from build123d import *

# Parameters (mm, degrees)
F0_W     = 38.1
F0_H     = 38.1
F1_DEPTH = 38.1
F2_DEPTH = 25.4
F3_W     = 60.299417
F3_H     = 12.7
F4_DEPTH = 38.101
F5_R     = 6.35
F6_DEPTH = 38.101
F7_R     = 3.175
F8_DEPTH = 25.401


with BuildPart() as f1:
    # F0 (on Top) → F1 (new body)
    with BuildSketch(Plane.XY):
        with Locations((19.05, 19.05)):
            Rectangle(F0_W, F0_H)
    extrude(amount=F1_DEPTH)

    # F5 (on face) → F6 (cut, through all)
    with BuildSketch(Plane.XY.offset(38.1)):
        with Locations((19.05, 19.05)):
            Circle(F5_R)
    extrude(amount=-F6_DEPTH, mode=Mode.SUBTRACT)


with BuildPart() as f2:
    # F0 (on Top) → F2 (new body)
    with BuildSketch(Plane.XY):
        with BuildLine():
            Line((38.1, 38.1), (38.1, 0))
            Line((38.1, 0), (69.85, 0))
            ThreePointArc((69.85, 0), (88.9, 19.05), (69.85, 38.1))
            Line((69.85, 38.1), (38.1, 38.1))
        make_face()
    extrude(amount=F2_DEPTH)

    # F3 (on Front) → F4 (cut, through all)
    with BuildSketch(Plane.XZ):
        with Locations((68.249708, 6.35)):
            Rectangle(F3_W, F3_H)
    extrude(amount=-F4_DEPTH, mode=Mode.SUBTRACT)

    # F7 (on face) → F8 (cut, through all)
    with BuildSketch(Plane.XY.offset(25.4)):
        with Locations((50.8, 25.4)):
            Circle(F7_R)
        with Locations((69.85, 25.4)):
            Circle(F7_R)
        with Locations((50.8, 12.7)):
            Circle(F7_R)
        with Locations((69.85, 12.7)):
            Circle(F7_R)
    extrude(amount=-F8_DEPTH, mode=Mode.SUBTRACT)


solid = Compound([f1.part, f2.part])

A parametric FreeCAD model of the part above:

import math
import FreeCAD as App
import Part
import Sketcher
Q = App.Units.Quantity

doc = App.newDocument("Part")
params = doc.addObject("Spreadsheet::Sheet", "Params")
for row, (alias, value) in enumerate([
    ("sketch1_width", "1.5 in"),
    ("pad1_length", "1.5 in"),
    ("sketch2_diameter", "0.5 in"),
    ("sketch3_radius", "0.75 in"),
    ("sketch3_width", "1.25 in"),
    ("pad2_length", "1 in"),
    ("sketch4_height", "0.5 in"),
    ("sketch5_diameter", "0.25 in"),
], start=1):
    params.set(f"A{row}", alias)
    params.set(f"B{row}", "=" + value)
    params.setAlias(f"B{row}", alias)

body = doc.addObject("PartDesign::Body", "Body")

# Sketch on XY plane
sketch1 = body.newObject("Sketcher::SketchObject", "Sketch")
sketch1.AttachmentSupport = (doc.getObject("XY_Plane"), [""])
sketch1.MapMode = "FlatFace"
sketch1.addGeometry([
    Part.LineSegment(App.Vector(0, 38.1, 0), App.Vector(0, 0, 0)),
    Part.LineSegment(App.Vector(0, 0, 0), App.Vector(38.1, 0, 0)),
    Part.LineSegment(App.Vector(38.1, 0, 0), App.Vector(38.1, 38.1, 0)),
    Part.LineSegment(App.Vector(38.1, 38.1, 0), App.Vector(0, 38.1, 0)),
], False)
sketch1.addConstraint([
    Sketcher.Constraint("Coincident", 0, 2, 1, 1),
    Sketcher.Constraint("Coincident", 1, 2, 2, 1),
    Sketcher.Constraint("Coincident", 2, 2, 3, 1),
    Sketcher.Constraint("Coincident", 3, 2, 0, 1),
    Sketcher.Constraint("Vertical", 0),
    Sketcher.Constraint("Horizontal", 1),
    Sketcher.Constraint("Vertical", 2),
    Sketcher.Constraint("Horizontal", 3),
    Sketcher.Constraint("Coincident", 0, 2, -1, 1),
    Sketcher.Constraint("Equal", 3, 0),
    Sketcher.Constraint("DistanceX", 1, 1, 1, 2, Q("1.5 in")),
])
sketch1.setExpression("Constraints[10]", "Params.sketch1_width")
pad1 = body.newObject("PartDesign::Pad", "Pad")
pad1.Profile = sketch1
pad1.setExpression("Length", "Params.pad1_length")

# Sketch on XY plane
sketch2 = body.newObject("Sketcher::SketchObject", "Sketch001")
sketch2.AttachmentSupport = (doc.getObject("XY_Plane"), [""])
sketch2.MapMode = "FlatFace"
sketch2.AttachmentOffset = App.Placement(App.Vector(0, 0, 1.5 * 25.4), App.Rotation())
sketch2.addGeometry(Part.Circle(App.Vector(19.05, 19.05, 0), App.Vector(0, 0, 1), 6.35), False)
sketch2.addConstraint([
    Sketcher.Constraint("Diameter", 0, Q("0.5 in")),
    Sketcher.Constraint("DistanceX", -1, 1, 0, 3, Q("0.75 in")),
    Sketcher.Constraint("DistanceY", -1, 1, 0, 3, Q("0.75 in")),
])
sketch2.setExpression("Constraints[0]", "Params.sketch2_diameter")
pocket1 = body.newObject("PartDesign::Pocket", "Pocket")
pocket1.Profile = sketch2
pocket1.Type = "ThroughAll"
body2 = doc.addObject("PartDesign::Body", "Body001")

# Sketch on XY plane
sketch3 = body2.newObject("Sketcher::SketchObject", "Sketch002")
sketch3.AttachmentSupport = (doc.getObject("XY_Plane001"), [""])
sketch3.MapMode = "FlatFace"
sketch3.addGeometry([
    Part.LineSegment(App.Vector(38.1, 38.1, 0), App.Vector(38.1, 0, 0)),
    Part.LineSegment(App.Vector(38.1, 0, 0), App.Vector(69.85, 0, 0)),
    Part.ArcOfCircle(Part.Circle(App.Vector(69.85, 19.05, 0), App.Vector(0, 0, 1), 19.05), math.radians(-90), math.radians(90)),
    Part.LineSegment(App.Vector(69.85, 38.1, 0), App.Vector(38.1, 38.1, 0)),
], False)
sketch3.addConstraint([
    Sketcher.Constraint("Coincident", 0, 2, 1, 1),
    Sketcher.Constraint("Tangent", 1, 2, 2, 1),
    Sketcher.Constraint("Tangent", 2, 2, 3, 1),
    Sketcher.Constraint("Coincident", 3, 2, 0, 1),
    Sketcher.Constraint("Vertical", 0),
    Sketcher.Constraint("Horizontal", 1),
    Sketcher.Constraint("Horizontal", 3),
    Sketcher.Constraint("PointOnObject", 0, 2, -1),
    Sketcher.Constraint("Radius", 2, Q("0.75 in")),
    Sketcher.Constraint("DistanceX", 1, 1, 1, 2, Q("1.25 in")),
    Sketcher.Constraint("DistanceX", -1, 1, 0, 2, Q("1.5 in")),
])
sketch3.setExpression("Constraints[8]", "Params.sketch3_radius")
sketch3.setExpression("Constraints[9]", "Params.sketch3_width")
pad2 = body2.newObject("PartDesign::Pad", "Pad001")
pad2.Profile = sketch3
pad2.setExpression("Length", "Params.pad2_length")

# Sketch on XZ plane
sketch4 = body2.newObject("Sketcher::SketchObject", "Sketch003")
sketch4.AttachmentSupport = (doc.getObject("XZ_Plane001"), [""])
sketch4.MapMode = "FlatFace"
sketch4.addGeometry([
    Part.LineSegment(App.Vector(38.1, 12.7, 0), App.Vector(38.1, 0, 0)),
    Part.LineSegment(App.Vector(38.1, 0, 0), App.Vector(98.399417, 0, 0)),
    Part.LineSegment(App.Vector(98.399417, 0, 0), App.Vector(98.399417, 12.7, 0)),
    Part.LineSegment(App.Vector(98.399417, 12.7, 0), App.Vector(38.1, 12.7, 0)),
], False)
sketch4.addConstraint([
    Sketcher.Constraint("Coincident", 0, 2, 1, 1),
    Sketcher.Constraint("Coincident", 1, 2, 2, 1),
    Sketcher.Constraint("Coincident", 2, 2, 3, 1),
    Sketcher.Constraint("Coincident", 3, 2, 0, 1),
    Sketcher.Constraint("Vertical", 0),
    Sketcher.Constraint("Horizontal", 1),
    Sketcher.Constraint("Vertical", 2),
    Sketcher.Constraint("Horizontal", 3),
    Sketcher.Constraint("PointOnObject", 0, 2, -1),
    Sketcher.Constraint("DistanceY", 0, 2, 0, 1, Q("0.5 in")),
    Sketcher.Constraint("DistanceX", -1, 1, 0, 2, Q("1.5 in")),
    Sketcher.Constraint("DistanceX", 1, 1, 1, 2, 60.299417),
])
sketch4.setExpression("Constraints[9]", "Params.sketch4_height")
pocket2 = body2.newObject("PartDesign::Pocket", "Pocket001")
pocket2.Profile = sketch4
pocket2.Type = "ThroughAll"

# Sketch on XY plane
sketch5 = body2.newObject("Sketcher::SketchObject", "Sketch004")
sketch5.AttachmentSupport = (doc.getObject("XY_Plane001"), [""])
sketch5.MapMode = "FlatFace"
sketch5.AttachmentOffset = App.Placement(App.Vector(0, 0, 1 * 25.4), App.Rotation())
sketch5.addGeometry([
    Part.Circle(App.Vector(50.8, 25.4, 0), App.Vector(0, 0, 1), 3.175),
    Part.Circle(App.Vector(69.85, 25.4, 0), App.Vector(0, 0, 1), 3.175),
    Part.Circle(App.Vector(50.8, 12.7, 0), App.Vector(0, 0, 1), 3.175),
    Part.Circle(App.Vector(69.85, 12.7, 0), App.Vector(0, 0, 1), 3.175),
], False)
sketch5.addConstraint([
    Sketcher.Constraint("Equal", 0, 1),
    Sketcher.Constraint("Equal", 1, 2),
    Sketcher.Constraint("Equal", 2, 3),
    Sketcher.Constraint("Horizontal", 0, 3, 1, 3),
    Sketcher.Constraint("Horizontal", 2, 3, 3, 3),
    Sketcher.Constraint("Vertical", 0, 3, 2, 3),
    Sketcher.Constraint("Vertical", 1, 3, 3, 3),
    Sketcher.Constraint("Diameter", 0, Q("0.25 in")),
    Sketcher.Constraint("DistanceX", -1, 1, 0, 3, Q("2 in")),
    Sketcher.Constraint("DistanceY", -1, 1, 0, 3, Q("1 in")),
    Sketcher.Constraint("DistanceY", -1, 1, 2, 3, Q("0.5 in")),
    Sketcher.Constraint("DistanceX", -1, 1, 1, 3, Q("2.75 in")),
])
sketch5.setExpression("Constraints[7]", "Params.sketch5_diameter")
pocket3 = body2.newObject("PartDesign::Pocket", "Pocket002")
pocket3.Profile = sketch5
pocket3.Type = "ThroughAll"

doc.recompute()
